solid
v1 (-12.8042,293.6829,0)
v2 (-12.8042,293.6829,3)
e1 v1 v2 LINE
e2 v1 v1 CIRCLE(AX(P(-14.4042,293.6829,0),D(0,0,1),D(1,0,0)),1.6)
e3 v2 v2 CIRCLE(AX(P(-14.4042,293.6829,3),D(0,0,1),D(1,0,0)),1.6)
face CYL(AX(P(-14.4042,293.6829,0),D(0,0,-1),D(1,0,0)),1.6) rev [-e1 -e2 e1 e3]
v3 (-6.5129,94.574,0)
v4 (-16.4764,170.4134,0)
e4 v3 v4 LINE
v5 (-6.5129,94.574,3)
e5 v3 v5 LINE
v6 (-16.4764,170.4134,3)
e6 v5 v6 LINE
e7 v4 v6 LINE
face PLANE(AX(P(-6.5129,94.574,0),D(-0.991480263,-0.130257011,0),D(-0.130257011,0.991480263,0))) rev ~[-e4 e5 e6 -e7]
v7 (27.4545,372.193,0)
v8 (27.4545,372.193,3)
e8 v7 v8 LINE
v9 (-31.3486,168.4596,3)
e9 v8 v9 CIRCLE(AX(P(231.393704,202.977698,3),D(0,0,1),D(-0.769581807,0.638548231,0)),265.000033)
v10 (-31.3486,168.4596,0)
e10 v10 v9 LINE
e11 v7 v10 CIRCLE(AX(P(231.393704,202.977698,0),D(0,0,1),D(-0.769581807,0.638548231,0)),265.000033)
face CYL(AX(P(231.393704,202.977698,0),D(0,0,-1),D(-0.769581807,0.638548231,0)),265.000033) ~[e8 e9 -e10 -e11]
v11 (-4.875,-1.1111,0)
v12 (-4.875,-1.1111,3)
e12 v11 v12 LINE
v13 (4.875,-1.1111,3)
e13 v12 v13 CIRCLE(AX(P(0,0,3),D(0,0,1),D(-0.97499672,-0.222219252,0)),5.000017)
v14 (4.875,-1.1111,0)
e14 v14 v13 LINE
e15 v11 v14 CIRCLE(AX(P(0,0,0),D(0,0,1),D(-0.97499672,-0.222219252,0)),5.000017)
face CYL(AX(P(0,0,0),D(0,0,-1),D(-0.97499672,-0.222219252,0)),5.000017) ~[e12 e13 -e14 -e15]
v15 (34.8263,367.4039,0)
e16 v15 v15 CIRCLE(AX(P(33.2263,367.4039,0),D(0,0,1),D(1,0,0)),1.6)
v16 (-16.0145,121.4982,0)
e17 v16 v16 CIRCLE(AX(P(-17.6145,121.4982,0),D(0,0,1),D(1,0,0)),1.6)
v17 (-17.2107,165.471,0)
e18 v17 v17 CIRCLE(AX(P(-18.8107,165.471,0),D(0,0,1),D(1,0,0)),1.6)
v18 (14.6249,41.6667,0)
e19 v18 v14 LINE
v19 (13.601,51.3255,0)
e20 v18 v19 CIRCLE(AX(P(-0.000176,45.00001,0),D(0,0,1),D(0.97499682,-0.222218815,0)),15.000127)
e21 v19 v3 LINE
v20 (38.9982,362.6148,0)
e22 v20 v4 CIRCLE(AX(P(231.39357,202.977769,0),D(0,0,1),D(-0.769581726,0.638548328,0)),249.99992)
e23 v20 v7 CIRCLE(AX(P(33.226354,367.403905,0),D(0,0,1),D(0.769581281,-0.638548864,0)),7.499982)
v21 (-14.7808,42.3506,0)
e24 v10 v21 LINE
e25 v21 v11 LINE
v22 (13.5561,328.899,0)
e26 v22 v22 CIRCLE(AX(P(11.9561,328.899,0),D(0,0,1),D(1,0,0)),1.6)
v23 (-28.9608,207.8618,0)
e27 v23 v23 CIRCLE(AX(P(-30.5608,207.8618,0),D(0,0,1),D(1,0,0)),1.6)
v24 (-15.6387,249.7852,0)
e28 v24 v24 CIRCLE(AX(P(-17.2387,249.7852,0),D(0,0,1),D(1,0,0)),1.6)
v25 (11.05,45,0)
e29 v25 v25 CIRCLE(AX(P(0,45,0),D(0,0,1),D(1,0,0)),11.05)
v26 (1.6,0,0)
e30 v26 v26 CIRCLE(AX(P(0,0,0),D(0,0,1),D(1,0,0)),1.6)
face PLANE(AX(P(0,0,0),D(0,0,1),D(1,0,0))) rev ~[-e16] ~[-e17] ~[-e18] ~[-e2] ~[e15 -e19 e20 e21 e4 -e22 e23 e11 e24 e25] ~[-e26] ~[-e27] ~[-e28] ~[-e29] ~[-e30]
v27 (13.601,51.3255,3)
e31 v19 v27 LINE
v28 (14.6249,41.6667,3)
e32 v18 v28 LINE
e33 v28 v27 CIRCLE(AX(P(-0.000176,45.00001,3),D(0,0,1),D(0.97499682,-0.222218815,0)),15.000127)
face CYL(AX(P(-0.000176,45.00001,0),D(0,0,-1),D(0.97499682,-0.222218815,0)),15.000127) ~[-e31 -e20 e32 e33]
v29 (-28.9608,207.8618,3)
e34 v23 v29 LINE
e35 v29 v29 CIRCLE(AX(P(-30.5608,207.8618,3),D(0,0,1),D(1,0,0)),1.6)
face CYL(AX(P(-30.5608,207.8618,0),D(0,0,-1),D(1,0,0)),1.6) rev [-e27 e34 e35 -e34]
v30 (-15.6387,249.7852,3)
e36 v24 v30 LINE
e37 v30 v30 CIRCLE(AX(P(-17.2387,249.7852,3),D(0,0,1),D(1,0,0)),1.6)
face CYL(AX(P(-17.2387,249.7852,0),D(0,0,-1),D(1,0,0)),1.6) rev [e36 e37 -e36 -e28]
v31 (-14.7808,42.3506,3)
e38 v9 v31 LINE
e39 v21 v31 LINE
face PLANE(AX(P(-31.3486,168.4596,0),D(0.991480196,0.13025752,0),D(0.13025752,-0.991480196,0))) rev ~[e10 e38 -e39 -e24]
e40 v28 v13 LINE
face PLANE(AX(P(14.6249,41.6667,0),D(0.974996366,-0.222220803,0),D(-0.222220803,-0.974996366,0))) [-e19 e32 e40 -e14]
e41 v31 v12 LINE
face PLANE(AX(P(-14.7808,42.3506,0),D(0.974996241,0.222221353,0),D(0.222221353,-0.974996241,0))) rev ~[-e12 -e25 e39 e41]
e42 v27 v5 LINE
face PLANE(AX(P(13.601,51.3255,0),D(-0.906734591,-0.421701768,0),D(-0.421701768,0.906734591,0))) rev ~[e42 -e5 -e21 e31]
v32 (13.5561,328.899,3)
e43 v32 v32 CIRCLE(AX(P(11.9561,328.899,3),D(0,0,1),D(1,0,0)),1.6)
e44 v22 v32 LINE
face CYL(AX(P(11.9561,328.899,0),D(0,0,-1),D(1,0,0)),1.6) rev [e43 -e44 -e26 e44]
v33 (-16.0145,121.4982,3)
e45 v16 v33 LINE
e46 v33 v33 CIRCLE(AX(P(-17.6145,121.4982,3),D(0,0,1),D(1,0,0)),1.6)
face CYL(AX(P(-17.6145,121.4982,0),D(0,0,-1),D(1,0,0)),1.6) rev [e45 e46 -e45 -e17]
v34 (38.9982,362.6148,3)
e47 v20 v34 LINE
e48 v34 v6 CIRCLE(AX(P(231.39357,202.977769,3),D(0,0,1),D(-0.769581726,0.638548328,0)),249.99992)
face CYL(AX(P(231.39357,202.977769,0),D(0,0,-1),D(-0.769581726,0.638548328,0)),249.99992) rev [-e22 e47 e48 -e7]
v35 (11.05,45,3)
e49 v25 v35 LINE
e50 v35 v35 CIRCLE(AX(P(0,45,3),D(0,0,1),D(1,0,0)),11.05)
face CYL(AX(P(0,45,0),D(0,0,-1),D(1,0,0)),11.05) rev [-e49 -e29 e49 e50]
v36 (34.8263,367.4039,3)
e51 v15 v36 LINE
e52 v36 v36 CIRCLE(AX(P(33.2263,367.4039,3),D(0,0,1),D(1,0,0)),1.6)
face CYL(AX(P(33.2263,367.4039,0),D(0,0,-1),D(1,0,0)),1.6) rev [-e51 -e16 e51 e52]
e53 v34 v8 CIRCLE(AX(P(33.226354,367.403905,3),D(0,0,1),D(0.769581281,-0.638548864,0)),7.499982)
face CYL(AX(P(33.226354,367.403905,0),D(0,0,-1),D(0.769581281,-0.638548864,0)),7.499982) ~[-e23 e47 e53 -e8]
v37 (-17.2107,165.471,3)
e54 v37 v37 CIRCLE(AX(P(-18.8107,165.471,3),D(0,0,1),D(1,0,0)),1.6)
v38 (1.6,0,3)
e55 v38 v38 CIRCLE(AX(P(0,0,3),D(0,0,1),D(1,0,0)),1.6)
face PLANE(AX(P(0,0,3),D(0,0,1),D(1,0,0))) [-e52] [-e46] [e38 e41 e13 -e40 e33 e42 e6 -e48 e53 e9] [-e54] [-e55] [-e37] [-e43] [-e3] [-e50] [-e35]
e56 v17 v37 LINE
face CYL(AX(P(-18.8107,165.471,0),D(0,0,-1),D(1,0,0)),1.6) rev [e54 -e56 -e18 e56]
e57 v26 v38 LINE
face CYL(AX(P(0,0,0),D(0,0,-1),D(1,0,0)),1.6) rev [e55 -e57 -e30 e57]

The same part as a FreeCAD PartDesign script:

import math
import FreeCAD as App
import Part
import Sketcher

V = App.Vector

doc = App.newDocument("Part")
params = doc.addObject("Spreadsheet::Sheet", "Params")
for row, (alias, value) in enumerate([
    ("sketch1_radius", "250 mm"),
    ("sketch1_radius2", "5 mm"),
    ("sketch1_radius3", "15 mm"),
    ("sketch1_diameter", "3.2 mm"),
    ("sketch1_diameter2", "22.1 mm"),
    ("pad1_length", "3 mm"),
], start=1):
    params.set(f"A{row}", alias)
    params.set(f"B{row}", "=" + value)
    params.setAlias(f"B{row}", alias)

body = doc.addObject("PartDesign::Body", "Body")

sketch1 = body.newObject("Sketcher::SketchObject", "Sketch")
sketch1.AttachmentSupport = (doc.getObject("XY_Plane"), [""])
sketch1.MapMode = "FlatFace"
sketch1.addGeometry([
    Part.ArcOfCircle(Part.Circle(V(231.3937, 202.9777, 0), V(0, 0, 1), 250.00004), math.radians(140.31635), math.radians(187.484454)),
    Part.ArcOfCircle(Part.Circle(V(33.2263, 367.4039, 0), V(0, 0, 1), 7.500021), math.radians(-39.683403), math.radians(140.316109)),
    Part.ArcOfCircle(Part.Circle(V(231.3937, 202.9777, 0), V(0, 0, 1), 265.000028), math.radians(140.31635), math.radians(187.484442)),
    Part.LineSegment(V(-31.3486, 168.4596, 0), V(-14.7808, 42.3506, 0)),
    Part.LineSegment(V(-14.7808, 42.3506, 0), V(-4.875, -1.1111, 0)),
    Part.ArcOfCircle(Part.Circle(V(0, 0, 0), V(0, 0, 1), 5.000017), math.radians(-167.160586), math.radians(-12.839414)),
    Part.LineSegment(V(4.875, -1.1111, 0), V(14.6249, 41.6667, 0)),
    Part.ArcOfCircle(Part.Circle(V(0, 45, 0), V(0, 0, 1), 14.999972), math.radians(-12.839499), math.radians(24.942012)),
    Part.LineSegment(V(13.601, 51.3255, 0), V(-6.5129, 94.574, 0)),
    Part.LineSegment(V(-6.5129, 94.574, 0), V(-16.4764, 170.4134, 0)),
    Part.Circle(V(0, 0, 0), V(0, 0, 1), 1.6),
    Part.Circle(V(0, 45, 0), V(0, 0, 1), 11.05),
    Part.Circle(V(-17.6145, 121.4982, 0), V(0, 0, 1), 1.6),
    Part.Circle(V(-18.8107, 165.471, 0), V(0, 0, 1), 1.6),
    Part.Circle(V(-30.5608, 207.8618, 0), V(0, 0, 1), 1.6),
    Part.Circle(V(-17.2387, 249.7852, 0), V(0, 0, 1), 1.6),
    Part.Circle(V(-14.4042, 293.6829, 0), V(0, 0, 1), 1.6),
    Part.Circle(V(11.9561, 328.899, 0), V(0, 0, 1), 1.6),
    Part.Circle(V(33.2263, 367.4039, 0), V(0, 0, 1), 1.6),
], False)
sketch1.addConstraint([
    Sketcher.Constraint("Tangent", 0, 1, 1, 1),
    Sketcher.Constraint("Tangent", 1, 2, 2, 1),
    Sketcher.Constraint("Tangent", 2, 2, 3, 1),
    Sketcher.Constraint("Coincident", 3, 2, 4, 1),
    Sketcher.Constraint("Tangent", 4, 2, 5, 1),
    Sketcher.Constraint("Tangent", 5, 2, 6, 1),
    Sketcher.Constraint("Tangent", 6, 2, 7, 1),
    Sketcher.Constraint("Tangent", 7, 2, 8, 1),
    Sketcher.Constraint("Coincident", 8, 2, 9, 1),
    Sketcher.Constraint("Tangent", 9, 2, 0, 2),
    Sketcher.Constraint("Coincident", 5, 3, -1, 1),
    Sketcher.Constraint("Coincident", 10, 3, -1, 1),
    Sketcher.Constraint("Coincident", 2, 3, 0, 3),
    Sketcher.Constraint("Coincident", 11, 3, 7, 3),
    Sketcher.Constraint("Coincident", 18, 3, 1, 3),
    Sketcher.Constraint("Equal", 10, 12),
    Sketcher.Constraint("Equal", 12, 13),
    Sketcher.Constraint("Equal", 13, 14),
    Sketcher.Constraint("Equal", 14, 15),
    Sketcher.Constraint("Equal", 15, 16),
    Sketcher.Constraint("Equal", 16, 17),
    Sketcher.Constraint("Equal", 17, 18),
    Sketcher.Constraint("PointOnObject", 7, 3, -2),
    Sketcher.Constraint("Parallel", 3, 9),
    Sketcher.Constraint("Horizontal", 4, 2, 5, 2),
    Sketcher.Constraint("Radius", 0, 250.0),
    Sketcher.Constraint("Radius", 5, 5.0),
    Sketcher.Constraint("Radius", 7, 15.0),
    Sketcher.Constraint("Diameter", 10, 3.2),
    Sketcher.Constraint("Diameter", 11, 22.1),
    Sketcher.Constraint("Radius", 1, 7.5),
    Sketcher.Constraint("DistanceY", -1, 1, 7, 3, 45.0),
    Sketcher.Constraint("DistanceX", 14, 3, 13, 3, 11.75),
    Sketcher.Constraint("DistanceX", 2, 2, 15, 3, 14.11),
    Sketcher.Constraint("Distance", 8, 47.697),
    Sketcher.Constraint("Distance", 9, 76.491),
    Sketcher.Constraint("DistanceY", -1, 1, 1, 3, 367.404),
    Sketcher.Constraint("DistanceY", -1, 1, 13, 3, 165.471),
    Sketcher.Constraint("DistanceY", -1, 1, 16, 3, 293.683),
    Sketcher.Constraint("DistanceX", -1, 1, 17, 3, 11.956),
    Sketcher.Constraint("DistanceY", -1, 1, 17, 3, 328.899),
    Sketcher.Constraint("DistanceX", 8, 2, -1, 1, 6.513),
    Sketcher.Constraint("DistanceX", 14, 3, 1, 3, 63.787),
    Sketcher.Constraint("DistanceY", 14, 3, 1, 3, 159.542),
    Sketcher.Constraint("DistanceX", 14, 3, 15, 3, 13.322),
    Sketcher.Constraint("DistanceY", 12, 3, 15, 3, 128.287),
    Sketcher.Constraint("DistanceX", 2, 2, 12, 3, 13.734),
    Sketcher.Constraint("DistanceY", -1, 1, 12, 3, 121.4982),
    Sketcher.Constraint("DistanceX", 16, 3, -1, 1, 14.4042),
])
sketch1.setExpression("Constraints[25]", "Params.sketch1_radius")
sketch1.setExpression("Constraints[26]", "Params.sketch1_radius2")
sketch1.setExpression("Constraints[27]", "Params.sketch1_radius3")
sketch1.setExpression("Constraints[28]", "Params.sketch1_diameter")
sketch1.setExpression("Constraints[29]", "Params.sketch1_diameter2")
pad1 = body.newObject("PartDesign::Pad", "Pad")
pad1.Profile = sketch1
pad1.setExpression("Length", "Params.pad1_length")

doc.recompute()
